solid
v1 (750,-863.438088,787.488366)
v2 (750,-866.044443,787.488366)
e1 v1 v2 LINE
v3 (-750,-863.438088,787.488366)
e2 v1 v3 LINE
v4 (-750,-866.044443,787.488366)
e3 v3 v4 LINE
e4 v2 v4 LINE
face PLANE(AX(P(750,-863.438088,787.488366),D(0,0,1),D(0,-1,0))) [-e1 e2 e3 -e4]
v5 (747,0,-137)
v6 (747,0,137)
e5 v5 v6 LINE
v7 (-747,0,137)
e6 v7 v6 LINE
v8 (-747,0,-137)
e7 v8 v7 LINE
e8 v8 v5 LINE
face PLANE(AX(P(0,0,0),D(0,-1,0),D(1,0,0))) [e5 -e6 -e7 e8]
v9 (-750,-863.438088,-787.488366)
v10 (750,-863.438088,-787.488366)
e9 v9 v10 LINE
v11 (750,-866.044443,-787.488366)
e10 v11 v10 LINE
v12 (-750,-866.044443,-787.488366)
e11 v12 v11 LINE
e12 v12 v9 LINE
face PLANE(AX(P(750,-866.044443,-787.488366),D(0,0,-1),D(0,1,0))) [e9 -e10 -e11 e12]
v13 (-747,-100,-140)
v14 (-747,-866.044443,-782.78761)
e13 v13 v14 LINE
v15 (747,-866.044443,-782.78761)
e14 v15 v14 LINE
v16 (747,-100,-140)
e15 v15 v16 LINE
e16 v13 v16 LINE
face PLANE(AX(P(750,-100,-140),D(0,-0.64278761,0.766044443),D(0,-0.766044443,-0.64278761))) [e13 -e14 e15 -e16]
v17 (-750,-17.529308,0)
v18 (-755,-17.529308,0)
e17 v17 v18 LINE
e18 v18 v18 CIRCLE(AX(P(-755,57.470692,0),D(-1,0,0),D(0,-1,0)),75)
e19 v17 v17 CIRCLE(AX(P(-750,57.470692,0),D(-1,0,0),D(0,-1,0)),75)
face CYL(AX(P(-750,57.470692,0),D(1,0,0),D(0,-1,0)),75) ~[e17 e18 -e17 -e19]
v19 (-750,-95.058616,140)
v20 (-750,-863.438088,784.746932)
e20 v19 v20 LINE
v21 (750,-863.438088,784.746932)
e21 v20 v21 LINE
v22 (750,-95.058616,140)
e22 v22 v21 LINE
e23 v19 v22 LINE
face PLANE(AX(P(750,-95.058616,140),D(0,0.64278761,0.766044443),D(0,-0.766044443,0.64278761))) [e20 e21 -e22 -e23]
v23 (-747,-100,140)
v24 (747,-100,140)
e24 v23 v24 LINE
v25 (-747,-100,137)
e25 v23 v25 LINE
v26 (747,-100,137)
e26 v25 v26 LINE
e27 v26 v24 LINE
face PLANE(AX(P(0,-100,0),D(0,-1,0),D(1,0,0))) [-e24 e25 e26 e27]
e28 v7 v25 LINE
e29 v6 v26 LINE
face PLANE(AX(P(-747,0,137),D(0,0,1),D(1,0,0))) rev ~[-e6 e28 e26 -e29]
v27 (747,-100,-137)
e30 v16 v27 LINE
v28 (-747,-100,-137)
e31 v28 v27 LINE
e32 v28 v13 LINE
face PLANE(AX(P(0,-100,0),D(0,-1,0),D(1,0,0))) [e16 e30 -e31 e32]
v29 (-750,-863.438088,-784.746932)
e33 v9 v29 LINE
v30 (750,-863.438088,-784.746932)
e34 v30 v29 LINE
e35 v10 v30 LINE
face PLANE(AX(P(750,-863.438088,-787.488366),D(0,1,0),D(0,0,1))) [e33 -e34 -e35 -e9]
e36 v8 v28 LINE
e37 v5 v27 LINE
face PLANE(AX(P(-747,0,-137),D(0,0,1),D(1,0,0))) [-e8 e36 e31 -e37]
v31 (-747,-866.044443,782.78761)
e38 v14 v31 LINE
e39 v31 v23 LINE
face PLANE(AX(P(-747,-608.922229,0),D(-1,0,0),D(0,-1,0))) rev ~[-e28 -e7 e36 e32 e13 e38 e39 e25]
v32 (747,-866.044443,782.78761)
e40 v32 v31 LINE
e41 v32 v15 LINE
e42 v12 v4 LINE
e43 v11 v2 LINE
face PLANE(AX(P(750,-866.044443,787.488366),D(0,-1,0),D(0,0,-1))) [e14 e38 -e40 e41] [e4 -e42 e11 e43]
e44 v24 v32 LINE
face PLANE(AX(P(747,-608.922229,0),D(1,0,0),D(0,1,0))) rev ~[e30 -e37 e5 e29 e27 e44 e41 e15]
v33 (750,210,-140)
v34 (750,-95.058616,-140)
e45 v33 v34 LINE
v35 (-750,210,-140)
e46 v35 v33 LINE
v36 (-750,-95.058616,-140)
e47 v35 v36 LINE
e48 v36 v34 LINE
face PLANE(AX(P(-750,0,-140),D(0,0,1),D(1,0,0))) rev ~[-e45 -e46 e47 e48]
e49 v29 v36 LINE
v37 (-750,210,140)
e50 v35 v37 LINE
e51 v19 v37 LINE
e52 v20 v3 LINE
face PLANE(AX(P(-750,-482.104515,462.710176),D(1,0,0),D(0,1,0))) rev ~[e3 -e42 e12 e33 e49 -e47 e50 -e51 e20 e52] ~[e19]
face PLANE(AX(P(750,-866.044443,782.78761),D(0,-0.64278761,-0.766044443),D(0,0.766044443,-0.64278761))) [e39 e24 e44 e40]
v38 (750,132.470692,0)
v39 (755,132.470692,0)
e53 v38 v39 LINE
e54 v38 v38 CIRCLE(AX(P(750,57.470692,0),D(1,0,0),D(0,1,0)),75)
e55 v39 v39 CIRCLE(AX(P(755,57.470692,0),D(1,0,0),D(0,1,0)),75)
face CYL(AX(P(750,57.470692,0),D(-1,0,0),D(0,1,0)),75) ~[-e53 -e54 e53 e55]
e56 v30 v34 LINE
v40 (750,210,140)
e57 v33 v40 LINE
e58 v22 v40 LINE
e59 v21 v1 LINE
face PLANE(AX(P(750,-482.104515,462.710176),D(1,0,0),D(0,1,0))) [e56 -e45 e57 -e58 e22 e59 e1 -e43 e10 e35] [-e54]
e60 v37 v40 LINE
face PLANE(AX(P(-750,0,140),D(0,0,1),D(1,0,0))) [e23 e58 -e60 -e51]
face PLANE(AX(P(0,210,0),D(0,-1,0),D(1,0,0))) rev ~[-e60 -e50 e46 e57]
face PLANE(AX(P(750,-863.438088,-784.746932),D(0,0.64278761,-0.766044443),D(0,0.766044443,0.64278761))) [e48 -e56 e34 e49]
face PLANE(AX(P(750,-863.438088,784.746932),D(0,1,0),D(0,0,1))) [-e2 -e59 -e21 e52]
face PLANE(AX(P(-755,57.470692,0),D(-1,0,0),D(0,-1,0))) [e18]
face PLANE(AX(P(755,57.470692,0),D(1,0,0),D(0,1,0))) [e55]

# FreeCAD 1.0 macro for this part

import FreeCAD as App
import Part
import Sketcher

V = App.Vector
Q = App.Units.Quantity


def add_polygon(sketch, points):
    """Adds a closed chain of lines whose ends are joined by coincident constraints."""
    first, n = sketch.GeometryCount, len(points)
    for a, b in zip(points, points[1:] + points[:1]):
        sketch.addGeometry(Part.LineSegment(App.Vector(*a, 0), App.Vector(*b, 0)), False)
    for i in range(n):
        sketch.addConstraint(Sketcher.Constraint("Coincident", first + i, 2, first + (i + 1) % n, 1))

doc = App.newDocument("Part")
body = doc.addObject("PartDesign::Body", "Body")

sketch1 = body.newObject("Sketcher::SketchObject", "Sketch")
sketch1.AttachmentSupport = (doc.getObject("XZ_Plane"), [""])
sketch1.MapMode = "FlatFace"
add_polygon(sketch1, [(-750, 140), (-750, -140), (750, -140), (750, 140)])
sketch1.addConstraint([
    Sketcher.Constraint("Vertical", 0),
    Sketcher.Constraint("Horizontal", 1),
    Sketcher.Constraint("Vertical", 2),
    Sketcher.Constraint("Horizontal", 3),
    Sketcher.Constraint("Symmetric", 0, 2, 2, 2, -1, 1),
    Sketcher.Constraint("DistanceX", 1, 1, 1, 2, 1500.0),
    Sketcher.Constraint("DistanceY", 0, 2, 0, 1, 280.0),
])
pad1 = body.newObject("PartDesign::Pad", "Pad")
pad1.Profile = sketch1
pad1.Length = 210
pad1.Reversed = True

sketch2 = body.newObject("Sketcher::SketchObject", "Sketch001")
sketch2.AttachmentSupport = (doc.getObject("XZ_Plane"), [""])
sketch2.MapMode = "FlatFace"
add_polygon(sketch2, [(-750, 140), (-750, -140), (750, -140), (750, 140)])
add_polygon(sketch2, [(747, -137), (-747, -137), (-747, 137), (747, 137)])
sketch2.addConstraint([
    Sketcher.Constraint("Vertical", 0),
    Sketcher.Constraint("Horizontal", 1),
    Sketcher.Constraint("Vertical", 2),
    Sketcher.Constraint("Horizontal", 3),
    Sketcher.Constraint("Horizontal", 4),
    Sketcher.Constraint("Vertical", 5),
    Sketcher.Constraint("Horizontal", 6),
    Sketcher.Constraint("Vertical", 7),
    Sketcher.Constraint("Symmetric", 0, 2, 2, 2, -1, 1),
    Sketcher.Constraint("Symmetric", 4, 2, 6, 2, -1, 1),
    Sketcher.Constraint("DistanceX", 1, 1, 1, 2, 1500.0),
    Sketcher.Constraint("DistanceX", 4, 2, 4, 1, 1494.0),
    Sketcher.Constraint("DistanceY", 0, 2, 0, 1, 280.0),
    Sketcher.Constraint("DistanceY", 5, 1, 5, 2, 274.0),
])
pad2 = body.newObject("PartDesign::Pad", "Pad001")
pad2.Profile = sketch2
pad2.Length = 100

sketch3 = body.newObject("Sketcher::SketchObject", "Sketch002")
sketch3.AttachmentSupport = (doc.getObject("YZ_Plane"), [""])
sketch3.MapMode = "FlatFace"
sketch3.AttachmentOffset = App.Placement(V(0, 0, 750), App.Rotation())
add_polygon(sketch3, [(-866, 782.8), (-100, 140), (-95.1, 140), (-863.4, 784.7), (-863.4, 787.5), (-866, 787.5)])
add_polygon(sketch3, [(-95.1, -140), (-100, -140), (-866, -782.8), (-866, -787.5), (-863.4, -787.5), (-863.4, -784.7)])
sketch3.addConstraint([
    Sketcher.Constraint("Horizontal", 1),
    Sketcher.Constraint("Vertical", 3),
    Sketcher.Constraint("Horizontal", 4),
    Sketcher.Constraint("Vertical", 5),
    Sketcher.Constraint("Horizontal", 6),
    Sketcher.Constraint("Vertical", 8),
    Sketcher.Constraint("Horizontal", 9),
    Sketcher.Constraint("Vertical", 10),
    Sketcher.Constraint("Symmetric", 0, 2, 6, 2, -1),
    Sketcher.Constraint("Symmetric", 5, 2, 7, 2, -1),
    Sketcher.Constraint("Symmetric", 3, 2, 9, 2, -1),
    Sketcher.Constraint("Parallel", 0, 2),
    Sketcher.Constraint("Parallel", 7, 11),
    Sketcher.Constraint("Vertical", 1, 2, 11, 2),
    Sketcher.Constraint("Angle", 0, Q("-40 deg")),
    Sketcher.Constraint("Distance", 0, 1000.0),
    Sketcher.Constraint("DistanceX", 0, 2, -1, 1, 100.0),
    Sketcher.Constraint("DistanceY", -1, 1, 0, 2, 140.0),
    Sketcher.Constraint("DistanceX", 1, 1, 1, 2, 4.941384),
    Sketcher.Constraint("DistanceX", 4, 2, 4, 1, 2.606355),
    Sketcher.Constraint("DistanceY", 3, 1, 3, 2, 2.741434),
])
pad3 = body.newObject("PartDesign::Pad", "Pad002")
pad3.Profile = sketch3
pad3.Length = 1500
pad3.Reversed = True

sketch4 = body.newObject("Sketcher::SketchObject", "Sketch003")
sketch4.AttachmentSupport = (doc.getObject("YZ_Plane"), [""])
sketch4.MapMode = "FlatFace"
sketch4.AttachmentOffset = App.Placement(V(0, 0, 750), App.Rotation())
sketch4.addGeometry(Part.Circle(V(57, 0, 0), V(0, 0, 1), 75), False)
sketch4.addConstraint([
    Sketcher.Constraint("PointOnObject", 0, 3, -1),
    Sketcher.Constraint("Diameter", 0, 150.0),
    Sketcher.Constraint("DistanceX", -1, 1, 0, 3, 57.470692),
])
pad4 = body.newObject("PartDesign::Pad", "Pad003")
pad4.Profile = sketch4
pad4.Length = 5

sketch5 = body.newObject("Sketcher::SketchObject", "Sketch004")
sketch5.AttachmentSupport = (doc.getObject("YZ_Plane"), [""])
sketch5.MapMode = "FlatFace"
sketch5.AttachmentOffset = App.Placement(V(0, 0, -750), App.Rotation())
sketch5.addGeometry(Part.Circle(V(57, 0, 0), V(0, 0, 1), 75), False)
sketch5.addConstraint([
    Sketcher.Constraint("PointOnObject", 0, 3, -1),
    Sketcher.Constraint("Diameter", 0, 150.0),
    Sketcher.Constraint("DistanceX", -1, 1, 0, 3, 57.470692),
])
pad5 = body.newObject("PartDesign::Pad", "Pad004")
pad5.Profile = sketch5
pad5.Length = 5
pad5.Reversed = True

sketch6 = body.newObject("Sketcher::SketchObject", "Sketch005")
sketch6.AttachmentSupport = (doc.getObject("YZ_Plane"), [""])
sketch6.MapMode = "FlatFace"
sketch6.AttachmentOffset = App.Placement(V(0, 0, -750), App.Rotation())
add_polygon(sketch6, [(-866, 787.5), (-863.4, 787.5), (-863.4, 784.7), (-95.1, 140), (-100, 140), (-100, -140), (-95.1, -140), (-863.4, -784.7), (-863.4, -787.5), (-866, -787.5)])
sketch6.addConstraint([
    Sketcher.Constraint("Horizontal", 0),
    Sketcher.Constraint("Vertical", 1),
    Sketcher.Constraint("Horizontal", 3),
    Sketcher.Constraint("Vertical", 4),
    Sketcher.Constraint("Horizontal", 5),
    Sketcher.Constraint("Vertical", 7),
    Sketcher.Constraint("Horizontal", 8),
    Sketcher.Constraint("Vertical", 9),
    Sketcher.Constraint("Symmetric", 2, 2, 5, 2, -1),
    Sketcher.Constraint("Symmetric", 1, 2, 6, 2, -1),
    Sketcher.Constraint("Equal", 1, 7),
    Sketcher.Constraint("DistanceY", 4, 2, 4, 1, 280.0),
    Sketcher.Constraint("Angle", 2, Q("-40 deg")),
    Sketcher.Constraint("DistanceX", 3, 2, -1, 1, 100.0),
    Sketcher.Constraint("DistanceY", 9, 1, 9, 2, 1574.976732),
    Sketcher.Constraint("DistanceX", 0, 1, 0, 2, 2.606355),
    Sketcher.Constraint("DistanceX", 3, 2, 3, 1, 4.941384),
    Sketcher.Constraint("DistanceY", 1, 2, 1, 1, 2.741434),
])
pad6 = body.newObject("PartDesign::Pad", "Pad005")
pad6.Profile = sketch6
pad6.Length = 3

sketch7 = body.newObject("Sketcher::SketchObject", "Sketch006")
sketch7.AttachmentSupport = (doc.getObject("YZ_Plane"), [""])
sketch7.MapMode = "FlatFace"
sketch7.AttachmentOffset = App.Placement(V(0, 0, 750), App.Rotation())
add_polygon(sketch7, [(-866, -787.5), (-863.4, -787.5), (-863.4, -784.7), (-95.1, -140), (-100, -140), (-100, 140), (-95.1, 140), (-863.4, 784.7), (-863.4, 787.5), (-866, 787.5)])
sketch7.addConstraint([
    Sketcher.Constraint("Horizontal", 0),
    Sketcher.Constraint("Vertical", 1),
    Sketcher.Constraint("Horizontal", 3),
    Sketcher.Constraint("Vertical", 4),
    Sketcher.Constraint("Horizontal", 5),
    Sketcher.Constraint("Vertical", 7),
    Sketcher.Constraint("Horizontal", 8),
    Sketcher.Constraint("Vertical", 9),
    Sketcher.Constraint("Symmetric", 2, 2, 5, 2, -1),
    Sketcher.Constraint("Symmetric", 1, 2, 6, 2, -1),
    Sketcher.Constraint("Equal", 1, 7),
    Sketcher.Constraint("DistanceY", 4, 1, 4, 2, 280.0),
    Sketcher.Constraint("Angle", 2, Q("40 deg")),
    Sketcher.Constraint("DistanceX", 3, 2, -1, 1, 100.0),
    Sketcher.Constraint("DistanceY", 9, 2, 9, 1, 1574.976732),
    Sketcher.Constraint("DistanceX", 0, 1, 0, 2, 2.606355),
    Sketcher.Constraint("DistanceX", 3, 2, 3, 1, 4.941384),
    Sketcher.Constraint("DistanceY", 1, 1, 1, 2, 2.741434),
])
pad7 = body.newObject("PartDesign::Pad", "Pad006")
pad7.Profile = sketch7
pad7.Length = 3
pad7.Reversed = True

doc.recompute()
